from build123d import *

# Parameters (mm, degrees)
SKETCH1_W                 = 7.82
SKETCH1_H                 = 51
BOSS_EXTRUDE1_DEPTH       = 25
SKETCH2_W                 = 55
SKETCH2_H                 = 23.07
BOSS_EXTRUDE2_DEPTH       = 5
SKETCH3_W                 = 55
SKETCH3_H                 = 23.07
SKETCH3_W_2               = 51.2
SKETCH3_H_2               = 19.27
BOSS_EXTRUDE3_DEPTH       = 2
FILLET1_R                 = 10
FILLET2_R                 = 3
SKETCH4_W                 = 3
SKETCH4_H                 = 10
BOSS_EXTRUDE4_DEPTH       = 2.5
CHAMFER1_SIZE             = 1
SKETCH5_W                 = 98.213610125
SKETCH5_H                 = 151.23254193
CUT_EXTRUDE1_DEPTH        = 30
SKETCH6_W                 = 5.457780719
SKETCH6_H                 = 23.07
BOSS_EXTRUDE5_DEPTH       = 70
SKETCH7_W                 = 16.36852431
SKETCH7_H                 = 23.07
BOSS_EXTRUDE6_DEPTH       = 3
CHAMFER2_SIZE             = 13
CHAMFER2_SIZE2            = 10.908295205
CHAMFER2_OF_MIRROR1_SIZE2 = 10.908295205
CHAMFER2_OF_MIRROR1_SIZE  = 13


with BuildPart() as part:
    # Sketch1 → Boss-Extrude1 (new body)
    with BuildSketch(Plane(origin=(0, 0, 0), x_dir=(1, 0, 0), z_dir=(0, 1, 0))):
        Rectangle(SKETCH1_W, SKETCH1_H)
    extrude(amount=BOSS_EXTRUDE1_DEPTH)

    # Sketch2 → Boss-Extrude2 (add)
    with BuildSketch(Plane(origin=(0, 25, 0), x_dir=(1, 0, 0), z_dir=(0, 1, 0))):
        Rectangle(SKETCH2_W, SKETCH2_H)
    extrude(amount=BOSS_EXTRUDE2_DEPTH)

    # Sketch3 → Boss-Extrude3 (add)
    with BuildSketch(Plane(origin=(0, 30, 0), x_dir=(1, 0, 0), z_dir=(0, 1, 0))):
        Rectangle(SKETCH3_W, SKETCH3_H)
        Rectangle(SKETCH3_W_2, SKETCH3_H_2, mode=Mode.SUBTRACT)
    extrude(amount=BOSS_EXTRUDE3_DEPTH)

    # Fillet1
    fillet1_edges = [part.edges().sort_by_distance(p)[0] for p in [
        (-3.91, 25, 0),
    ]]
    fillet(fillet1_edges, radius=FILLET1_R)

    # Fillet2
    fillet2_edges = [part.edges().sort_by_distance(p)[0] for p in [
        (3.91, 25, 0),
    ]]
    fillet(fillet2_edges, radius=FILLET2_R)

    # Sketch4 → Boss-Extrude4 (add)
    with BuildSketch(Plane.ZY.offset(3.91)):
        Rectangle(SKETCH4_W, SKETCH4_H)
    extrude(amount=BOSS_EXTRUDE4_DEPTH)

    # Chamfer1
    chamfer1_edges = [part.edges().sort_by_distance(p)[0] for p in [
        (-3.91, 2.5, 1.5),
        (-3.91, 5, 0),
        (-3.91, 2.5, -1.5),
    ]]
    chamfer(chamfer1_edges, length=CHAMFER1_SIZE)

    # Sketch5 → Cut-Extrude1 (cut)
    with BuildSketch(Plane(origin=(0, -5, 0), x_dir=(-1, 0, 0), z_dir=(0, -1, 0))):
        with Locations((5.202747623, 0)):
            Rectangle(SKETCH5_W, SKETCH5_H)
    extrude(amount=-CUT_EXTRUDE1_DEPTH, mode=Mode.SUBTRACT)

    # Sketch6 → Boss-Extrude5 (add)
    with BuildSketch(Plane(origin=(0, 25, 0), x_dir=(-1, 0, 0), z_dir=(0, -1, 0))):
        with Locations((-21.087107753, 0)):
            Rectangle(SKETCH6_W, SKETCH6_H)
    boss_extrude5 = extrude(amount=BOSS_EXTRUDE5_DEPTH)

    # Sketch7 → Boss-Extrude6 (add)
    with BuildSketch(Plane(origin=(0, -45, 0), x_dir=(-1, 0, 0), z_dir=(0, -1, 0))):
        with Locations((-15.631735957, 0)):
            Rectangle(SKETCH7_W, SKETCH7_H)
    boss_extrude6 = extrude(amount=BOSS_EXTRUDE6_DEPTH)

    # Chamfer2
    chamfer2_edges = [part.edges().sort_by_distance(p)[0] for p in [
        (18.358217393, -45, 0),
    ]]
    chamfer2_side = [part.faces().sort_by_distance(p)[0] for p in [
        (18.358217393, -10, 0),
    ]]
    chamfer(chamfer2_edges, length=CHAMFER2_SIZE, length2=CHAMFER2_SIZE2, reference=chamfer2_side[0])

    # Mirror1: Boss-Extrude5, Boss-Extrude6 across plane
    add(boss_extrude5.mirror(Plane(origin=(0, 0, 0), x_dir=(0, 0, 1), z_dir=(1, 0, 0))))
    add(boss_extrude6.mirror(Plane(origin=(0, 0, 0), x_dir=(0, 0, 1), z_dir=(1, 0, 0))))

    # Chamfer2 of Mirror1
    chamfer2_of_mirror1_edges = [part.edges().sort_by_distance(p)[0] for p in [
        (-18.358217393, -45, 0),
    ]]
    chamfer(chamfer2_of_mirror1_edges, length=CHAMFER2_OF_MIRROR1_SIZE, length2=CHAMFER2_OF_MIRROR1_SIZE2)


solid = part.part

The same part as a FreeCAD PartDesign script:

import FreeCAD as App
import Part
import Sketcher
from FreeCAD import Vector
Q = App.Units.Quantity


def edges_at(feature, points):
    """Names of the edges that pass closest to the given points."""
    edges = feature.Shape.Edges
    near = lambda p: min(range(len(edges)), key=lambda i: edges[i].distToShape(Part.Vertex(*p))[0])
    return sorted({f"Edge{near(p) + 1}" for p in points})

doc = App.newDocument("Part")
body = doc.addObject("PartDesign::Body", "Body")

# Sketch on XZ plane
sketch1 = body.newObject("Sketcher::SketchObject", "Sketch")
sketch1.AttachmentSupport = (doc.getObject("XZ_Plane"), [""])
sketch1.MapMode = "FlatFace"
sketch1.addGeometry(Part.LineSegment(Vector(-4, -26, 0), Vector(-4, 26, 0)), False)
sketch1.addGeometry(Part.LineSegment(Vector(-4, 26, 0), Vector(4, 26, 0)), False)
sketch1.addGeometry(Part.LineSegment(Vector(4, 26, 0), Vector(4, -26, 0)), False)
sketch1.addGeometry(Part.LineSegment(Vector(4, -26, 0), Vector(-4, -26, 0)), False)
sketch1.addConstraint(Sketcher.Constraint("Coincident", 0, 2, 1, 1))
sketch1.addConstraint(Sketcher.Constraint("Coincident", 1, 2, 2, 1))
sketch1.addConstraint(Sketcher.Constraint("Coincident", 2, 2, 3, 1))
sketch1.addConstraint(Sketcher.Constraint("Coincident", 3, 2, 0, 1))
sketch1.addConstraint(Sketcher.Constraint("Vertical", 0))
sketch1.addConstraint(Sketcher.Constraint("Horizontal", 1))
sketch1.addConstraint(Sketcher.Constraint("Vertical", 2))
sketch1.addConstraint(Sketcher.Constraint("Horizontal", 3))
sketch1.addConstraint(Sketcher.Constraint("Symmetric", 0, 2, 2, 2, -1, 1))
sketch1.addConstraint(Sketcher.Constraint("DistanceY", 0, 1, 0, 2, Q("51 mm")))
sketch1.addConstraint(Sketcher.Constraint("DistanceX", 1, 1, 1, 2, Q("7.82 mm")))
pad1 = body.newObject("PartDesign::Pad", "Pad")
pad1.Profile = sketch1
pad1.Length = 25
pad1.Reversed = True

# Sketch on XZ plane
sketch2 = body.newObject("Sketcher::SketchObject", "Sketch001")
sketch2.AttachmentSupport = (doc.getObject("XZ_Plane"), [""])
sketch2.MapMode = "FlatFace"
sketch2.AttachmentOffset = App.Placement(Vector(0, 0, -25), App.Rotation())
sketch2.addGeometry(Part.LineSegment(Vector(-28, -12, 0), Vector(-28, 12, 0)), False)
sketch2.addGeometry(Part.LineSegment(Vector(-28, 12, 0), Vector(28, 12, 0)), False)
sketch2.addGeometry(Part.LineSegment(Vector(28, 12, 0), Vector(28, -12, 0)), False)
sketch2.addGeometry(Part.LineSegment(Vector(28, -12, 0), Vector(-28, -12, 0)), False)
sketch2.addConstraint(Sketcher.Constraint("Coincident", 0, 2, 1, 1))
sketch2.addConstraint(Sketcher.Constraint("Coincident", 1, 2, 2, 1))
sketch2.addConstraint(Sketcher.Constraint("Coincident", 2, 2, 3, 1))
sketch2.addConstraint(Sketcher.Constraint("Coincident", 3, 2, 0, 1))
sketch2.addConstraint(Sketcher.Constraint("Vertical", 0))
sketch2.addConstraint(Sketcher.Constraint("Horizontal", 1))
sketch2.addConstraint(Sketcher.Constraint("Vertical", 2))
sketch2.addConstraint(Sketcher.Constraint("Horizontal", 3))
sketch2.addConstraint(Sketcher.Constraint("Symmetric", 0, 2, 2, 2, -1, 1))
sketch2.addConstraint(Sketcher.Constraint("DistanceX", 1, 1, 1, 2, Q("55 mm")))
sketch2.addConstraint(Sketcher.Constraint("DistanceY", 0, 1, 0, 2, Q("23.07 mm")))
pad2 = body.newObject("PartDesign::Pad", "Pad001")
pad2.Profile = sketch2
pad2.Length = 5
pad2.Reversed = True

# Sketch on XZ plane
sketch3 = body.newObject("Sketcher::SketchObject", "Sketch002")
sketch3.AttachmentSupport = (doc.getObject("XZ_Plane"), [""])
sketch3.MapMode = "FlatFace"
sketch3.AttachmentOffset = App.Placement(Vector(0, 0, -30), App.Rotation())
sketch3.addGeometry(Part.LineSegment(Vector(-28, -12, 0), Vector(-28, 12, 0)), False)
sketch3.addGeometry(Part.LineSegment(Vector(-28, 12, 0), Vector(28, 12, 0)), False)
sketch3.addGeometry(Part.LineSegment(Vector(28, 12, 0), Vector(28, -12, 0)), False)
sketch3.addGeometry(Part.LineSegment(Vector(28, -12, 0), Vector(-28, -12, 0)), False)
sketch3.addGeometry(Part.LineSegment(Vector(26, 10, 0), Vector(-26, 10, 0)), False)
sketch3.addGeometry(Part.LineSegment(Vector(-26, 10, 0), Vector(-26, -10, 0)), False)
sketch3.addGeometry(Part.LineSegment(Vector(-26, -10, 0), Vector(26, -10, 0)), False)
sketch3.addGeometry(Part.LineSegment(Vector(26, -10, 0), Vector(26, 10, 0)), False)
sketch3.addConstraint(Sketcher.Constraint("Coincident", 0, 2, 1, 1))
sketch3.addConstraint(Sketcher.Constraint("Coincident", 1, 2, 2, 1))
sketch3.addConstraint(Sketcher.Constraint("Coincident", 2, 2, 3, 1))
sketch3.addConstraint(Sketcher.Constraint("Coincident", 3, 2, 0, 1))
sketch3.addConstraint(Sketcher.Constraint("Coincident", 4, 2, 5, 1))
sketch3.addConstraint(Sketcher.Constraint("Coincident", 5, 2, 6, 1))
sketch3.addConstraint(Sketcher.Constraint("Coincident", 6, 2, 7, 1))
sketch3.addConstraint(Sketcher.Constraint("Coincident", 7, 2, 4, 1))
sketch3.addConstraint(Sketcher.Constraint("Vertical", 0))
sketch3.addConstraint(Sketcher.Constraint("Horizontal", 1))
sketch3.addConstraint(Sketcher.Constraint("Vertical", 2))
sketch3.addConstraint(Sketcher.Constraint("Horizontal", 3))
sketch3.addConstraint(Sketcher.Constraint("Horizontal", 4))
sketch3.addConstraint(Sketcher.Constraint("Vertical", 5))
sketch3.addConstraint(Sketcher.Constraint("Horizontal", 6))
sketch3.addConstraint(Sketcher.Constraint("Vertical", 7))
sketch3.addConstraint(Sketcher.Constraint("Symmetric", 0, 2, 2, 2, -1, 1))
sketch3.addConstraint(Sketcher.Constraint("Symmetric", 4, 2, 6, 2, -1, 1))
sketch3.addConstraint(Sketcher.Constraint("DistanceX", 1, 1, 1, 2, Q("55 mm")))
sketch3.addConstraint(Sketcher.Constraint("DistanceX", 4, 2, 4, 1, Q("51.2 mm")))
sketch3.addConstraint(Sketcher.Constraint("DistanceY", 0, 1, 0, 2, Q("23.07 mm")))
sketch3.addConstraint(Sketcher.Constraint("DistanceY", 5, 2, 5, 1, Q("19.27 mm")))
pad3 = body.newObject("PartDesign::Pad", "Pad002")
pad3.Profile = sketch3
pad3.Length = 2
pad3.Reversed = True
doc.recompute()

fillet = body.newObject("PartDesign::Fillet", "Fillet")
fillet.Base = (pad3, edges_at(pad3, [(-3.91, 25, 0)]))
fillet.Radius = 10
doc.recompute()

fillet2 = body.newObject("PartDesign::Fillet", "Fillet001")
fillet2.Base = (fillet, edges_at(fillet, [(3.91, 25, 0)]))
fillet2.Radius = 3

# Sketch on YZ plane
sketch4 = body.newObject("Sketcher::SketchObject", "Sketch003")
sketch4.AttachmentSupport = (doc.getObject("YZ_Plane"), [""])
sketch4.MapMode = "FlatFace"
sketch4.AttachmentOffset = App.Placement(Vector(0, 0, -3.91), App.Rotation())
sketch4.addGeometry(Part.LineSegment(Vector(5, -1.5, 0), Vector(-5, -1.5, 0)), False)
sketch4.addGeometry(Part.LineSegment(Vector(-5, -1.5, 0), Vector(-5, 1.5, 0)), False)
sketch4.addGeometry(Part.LineSegment(Vector(-5, 1.5, 0), Vector(5, 1.5, 0)), False)
sketch4.addGeometry(Part.LineSegment(Vector(5, 1.5, 0), Vector(5, -1.5, 0)), False)
sketch4.addConstraint(Sketcher.Constraint("Coincident", 0, 2, 1, 1))
sketch4.addConstraint(Sketcher.Constraint("Coincident", 1, 2, 2, 1))
sketch4.addConstraint(Sketcher.Constraint("Coincident", 2, 2, 3, 1))
sketch4.addConstraint(Sketcher.Constraint("Coincident", 3, 2, 0, 1))
sketch4.addConstraint(Sketcher.Constraint("Horizontal", 0))
sketch4.addConstraint(Sketcher.Constraint("Vertical", 1))
sketch4.addConstraint(Sketcher.Constraint("Horizontal", 2))
sketch4.addConstraint(Sketcher.Constraint("Vertical", 3))
sketch4.addConstraint(Sketcher.Constraint("Symmetric", 0, 2, 2, 2, -1, 1))
sketch4.addConstraint(Sketcher.Constraint("DistanceX", 0, 2, 0, 1, Q("10 mm")))
sketch4.addConstraint(Sketcher.Constraint("DistanceY", 1, 1, 1, 2, Q("3 mm")))
pad4 = body.newObject("PartDesign::Pad", "Pad003")
pad4.Profile = sketch4
pad4.Length = 2.5
pad4.Reversed = True
doc.recompute()

chamfer = body.newObject("PartDesign::Chamfer", "Chamfer")
chamfer.Base = (pad4, edges_at(pad4, [(-3.91, 2.5, 1.5), (-3.91, 5, 0), (-3.91, 2.5, -1.5)]))
chamfer.Size = 1

# Sketch on XZ plane
sketch5 = body.newObject("Sketcher::SketchObject", "Sketch004")
sketch5.AttachmentSupport = (doc.getObject("XZ_Plane"), [""])
sketch5.MapMode = "FlatFace"
sketch5.AttachmentOffset = App.Placement(Vector(0, 0, 5), App.Rotation())
sketch5.addGeometry(Part.LineSegment(Vector(44, -76, 0), Vector(44, 76, 0)), False)
sketch5.addGeometry(Part.LineSegment(Vector(44, 76, 0), Vector(-54, 76, 0)), False)
sketch5.addGeometry(Part.LineSegment(Vector(-54, 76, 0), Vector(-54, -76, 0)), False)
sketch5.addGeometry(Part.LineSegment(Vector(-54, -76, 0), Vector(44, -76, 0)), False)
sketch5.addConstraint(Sketcher.Constraint("Coincident", 0, 2, 1, 1))
sketch5.addConstraint(Sketcher.Constraint("Coincident", 1, 2, 2, 1))
sketch5.addConstraint(Sketcher.Constraint("Coincident", 2, 2, 3, 1))
sketch5.addConstraint(Sketcher.Constraint("Coincident", 3, 2, 0, 1))
sketch5.addConstraint(Sketcher.Constraint("Vertical", 0))
sketch5.addConstraint(Sketcher.Constraint("Horizontal", 1))
sketch5.addConstraint(Sketcher.Constraint("Vertical", 2))
sketch5.addConstraint(Sketcher.Constraint("Horizontal", 3))
sketch5.addConstraint(Sketcher.Constraint("DistanceX", 1, 2, 1, 1, Q("98.21361 mm")))
sketch5.addConstraint(Sketcher.Constraint("DistanceY", 0, 1, 0, 2, Q("151.232542 mm")))
sketch5.addConstraint(Sketcher.Constraint("DistanceY", -1, 1, 0, 2, Q("75.616271 mm")))
sketch5.addConstraint(Sketcher.Constraint("DistanceX", -1, 1, 0, 2, Q("43.904057 mm")))
pocket1 = body.newObject("PartDesign::Pocket", "Pocket")
pocket1.Profile = sketch5
pocket1.Length = 30

# Sketch on XZ plane
sketch6 = body.newObject("Sketcher::SketchObject", "Sketch005")
sketch6.AttachmentSupport = (doc.getObject("XZ_Plane"), [""])
sketch6.MapMode = "FlatFace"
sketch6.AttachmentOffset = App.Placement(Vector(0, 0, -25), App.Rotation())
sketch6.addGeometry(Part.LineSegment(Vector(24, -12, 0), Vector(24, 12, 0)), False)
sketch6.addGeometry(Part.LineSegment(Vector(24, 12, 0), Vector(18, 12, 0)), False)
sketch6.addGeometry(Part.LineSegment(Vector(18, 12, 0), Vector(18, -12, 0)), False)
sketch6.addGeometry(Part.LineSegment(Vector(18, -12, 0), Vector(24, -12, 0)), False)
sketch6.addConstraint(Sketcher.Constraint("Coincident", 0, 2, 1, 1))
sketch6.addConstraint(Sketcher.Constraint("Coincident", 1, 2, 2, 1))
sketch6.addConstraint(Sketcher.Constraint("Coincident", 2, 2, 3, 1))
sketch6.addConstraint(Sketcher.Constraint("Coincident", 3, 2, 0, 1))
sketch6.addConstraint(Sketcher.Constraint("Vertical", 0))
sketch6.addConstraint(Sketcher.Constraint("Horizontal", 1))
sketch6.addConstraint(Sketcher.Constraint("Vertical", 2))
sketch6.addConstraint(Sketcher.Constraint("Horizontal", 3))
sketch6.addConstraint(Sketcher.Constraint("DistanceY", 0, 1, 0, 2, Q("23.07 mm")))
sketch6.addConstraint(Sketcher.Constraint("DistanceX", -1, 1, 0, 2, Q("23.815998 mm")))
sketch6.addConstraint(Sketcher.Constraint("DistanceY", -1, 1, 0, 2, Q("11.535 mm")))
sketch6.addConstraint(Sketcher.Constraint("DistanceX", 1, 2, 1, 1, Q("5.457781 mm")))
pad5 = body.newObject("PartDesign::Pad", "Pad004")
pad5.Profile = sketch6
pad5.Length = 70

# Sketch on XZ plane
sketch7 = body.newObject("Sketcher::SketchObject", "Sketch006")
sketch7.AttachmentSupport = (doc.getObject("XZ_Plane"), [""])
sketch7.MapMode = "FlatFace"
sketch7.AttachmentOffset = App.Placement(Vector(0, 0, 45), App.Rotation())
sketch7.addGeometry(Part.LineSegment(Vector(24, -12, 0), Vector(24, 12, 0)), False)
sketch7.addGeometry(Part.LineSegment(Vector(24, 12, 0), Vector(7, 12, 0)), False)
sketch7.addGeometry(Part.LineSegment(Vector(7, 12, 0), Vector(7, -12, 0)), False)
sketch7.addGeometry(Part.LineSegment(Vector(7, -12, 0), Vector(24, -12, 0)), False)
sketch7.addConstraint(Sketcher.Constraint("Coincident", 0, 2, 1, 1))
sketch7.addConstraint(Sketcher.Constraint("Coincident", 1, 2, 2, 1))
sketch7.addConstraint(Sketcher.Constraint("Coincident", 2, 2, 3, 1))
sketch7.addConstraint(Sketcher.Constraint("Coincident", 3, 2, 0, 1))
sketch7.addConstraint(Sketcher.Constraint("Vertical", 0))
sketch7.addConstraint(Sketcher.Constraint("Horizontal", 1))
sketch7.addConstraint(Sketcher.Constraint("Vertical", 2))
sketch7.addConstraint(Sketcher.Constraint("Horizontal", 3))
sketch7.addConstraint(Sketcher.Constraint("DistanceY", 0, 1, 0, 2, Q("23.07 mm")))
sketch7.addConstraint(Sketcher.Constraint("DistanceX", -1, 1, 0, 2, Q("23.815998 mm")))
sketch7.addConstraint(Sketcher.Constraint("DistanceY", -1, 1, 0, 2, Q("11.535 mm")))
sketch7.addConstraint(Sketcher.Constraint("DistanceX", 1, 2, 1, 1, Q("16.368524 mm")))
pad6 = body.newObject("PartDesign::Pad", "Pad005")
pad6.Profile = sketch7
pad6.Length = 3
doc.recompute()

chamfer2 = body.newObject("PartDesign::Chamfer", "Chamfer001")
chamfer2.Base = (pad6, edges_at(pad6, [(18.358, -45, 0)]))
chamfer2.ChamferType = "Two distances"
chamfer2.Size = 13
chamfer2.Size2 = 10.908295
doc.recompute()

mirrored = body.newObject("PartDesign::Mirrored", "Mirrored")
mirrored.Originals = [pad5, pad6]
mirrored.MirrorPlane = (doc.getObject("YZ_Plane"), [""])
body.Tip = mirrored
doc.recompute()

chamfer3 = body.newObject("PartDesign::Chamfer", "Chamfer002")
chamfer3.Base = (mirrored, edges_at(mirrored, [(-18.358, -45, 0)]))
chamfer3.ChamferType = "Two distances"
chamfer3.Size = 13
chamfer3.Size2 = 10.908295

doc.recompute()
